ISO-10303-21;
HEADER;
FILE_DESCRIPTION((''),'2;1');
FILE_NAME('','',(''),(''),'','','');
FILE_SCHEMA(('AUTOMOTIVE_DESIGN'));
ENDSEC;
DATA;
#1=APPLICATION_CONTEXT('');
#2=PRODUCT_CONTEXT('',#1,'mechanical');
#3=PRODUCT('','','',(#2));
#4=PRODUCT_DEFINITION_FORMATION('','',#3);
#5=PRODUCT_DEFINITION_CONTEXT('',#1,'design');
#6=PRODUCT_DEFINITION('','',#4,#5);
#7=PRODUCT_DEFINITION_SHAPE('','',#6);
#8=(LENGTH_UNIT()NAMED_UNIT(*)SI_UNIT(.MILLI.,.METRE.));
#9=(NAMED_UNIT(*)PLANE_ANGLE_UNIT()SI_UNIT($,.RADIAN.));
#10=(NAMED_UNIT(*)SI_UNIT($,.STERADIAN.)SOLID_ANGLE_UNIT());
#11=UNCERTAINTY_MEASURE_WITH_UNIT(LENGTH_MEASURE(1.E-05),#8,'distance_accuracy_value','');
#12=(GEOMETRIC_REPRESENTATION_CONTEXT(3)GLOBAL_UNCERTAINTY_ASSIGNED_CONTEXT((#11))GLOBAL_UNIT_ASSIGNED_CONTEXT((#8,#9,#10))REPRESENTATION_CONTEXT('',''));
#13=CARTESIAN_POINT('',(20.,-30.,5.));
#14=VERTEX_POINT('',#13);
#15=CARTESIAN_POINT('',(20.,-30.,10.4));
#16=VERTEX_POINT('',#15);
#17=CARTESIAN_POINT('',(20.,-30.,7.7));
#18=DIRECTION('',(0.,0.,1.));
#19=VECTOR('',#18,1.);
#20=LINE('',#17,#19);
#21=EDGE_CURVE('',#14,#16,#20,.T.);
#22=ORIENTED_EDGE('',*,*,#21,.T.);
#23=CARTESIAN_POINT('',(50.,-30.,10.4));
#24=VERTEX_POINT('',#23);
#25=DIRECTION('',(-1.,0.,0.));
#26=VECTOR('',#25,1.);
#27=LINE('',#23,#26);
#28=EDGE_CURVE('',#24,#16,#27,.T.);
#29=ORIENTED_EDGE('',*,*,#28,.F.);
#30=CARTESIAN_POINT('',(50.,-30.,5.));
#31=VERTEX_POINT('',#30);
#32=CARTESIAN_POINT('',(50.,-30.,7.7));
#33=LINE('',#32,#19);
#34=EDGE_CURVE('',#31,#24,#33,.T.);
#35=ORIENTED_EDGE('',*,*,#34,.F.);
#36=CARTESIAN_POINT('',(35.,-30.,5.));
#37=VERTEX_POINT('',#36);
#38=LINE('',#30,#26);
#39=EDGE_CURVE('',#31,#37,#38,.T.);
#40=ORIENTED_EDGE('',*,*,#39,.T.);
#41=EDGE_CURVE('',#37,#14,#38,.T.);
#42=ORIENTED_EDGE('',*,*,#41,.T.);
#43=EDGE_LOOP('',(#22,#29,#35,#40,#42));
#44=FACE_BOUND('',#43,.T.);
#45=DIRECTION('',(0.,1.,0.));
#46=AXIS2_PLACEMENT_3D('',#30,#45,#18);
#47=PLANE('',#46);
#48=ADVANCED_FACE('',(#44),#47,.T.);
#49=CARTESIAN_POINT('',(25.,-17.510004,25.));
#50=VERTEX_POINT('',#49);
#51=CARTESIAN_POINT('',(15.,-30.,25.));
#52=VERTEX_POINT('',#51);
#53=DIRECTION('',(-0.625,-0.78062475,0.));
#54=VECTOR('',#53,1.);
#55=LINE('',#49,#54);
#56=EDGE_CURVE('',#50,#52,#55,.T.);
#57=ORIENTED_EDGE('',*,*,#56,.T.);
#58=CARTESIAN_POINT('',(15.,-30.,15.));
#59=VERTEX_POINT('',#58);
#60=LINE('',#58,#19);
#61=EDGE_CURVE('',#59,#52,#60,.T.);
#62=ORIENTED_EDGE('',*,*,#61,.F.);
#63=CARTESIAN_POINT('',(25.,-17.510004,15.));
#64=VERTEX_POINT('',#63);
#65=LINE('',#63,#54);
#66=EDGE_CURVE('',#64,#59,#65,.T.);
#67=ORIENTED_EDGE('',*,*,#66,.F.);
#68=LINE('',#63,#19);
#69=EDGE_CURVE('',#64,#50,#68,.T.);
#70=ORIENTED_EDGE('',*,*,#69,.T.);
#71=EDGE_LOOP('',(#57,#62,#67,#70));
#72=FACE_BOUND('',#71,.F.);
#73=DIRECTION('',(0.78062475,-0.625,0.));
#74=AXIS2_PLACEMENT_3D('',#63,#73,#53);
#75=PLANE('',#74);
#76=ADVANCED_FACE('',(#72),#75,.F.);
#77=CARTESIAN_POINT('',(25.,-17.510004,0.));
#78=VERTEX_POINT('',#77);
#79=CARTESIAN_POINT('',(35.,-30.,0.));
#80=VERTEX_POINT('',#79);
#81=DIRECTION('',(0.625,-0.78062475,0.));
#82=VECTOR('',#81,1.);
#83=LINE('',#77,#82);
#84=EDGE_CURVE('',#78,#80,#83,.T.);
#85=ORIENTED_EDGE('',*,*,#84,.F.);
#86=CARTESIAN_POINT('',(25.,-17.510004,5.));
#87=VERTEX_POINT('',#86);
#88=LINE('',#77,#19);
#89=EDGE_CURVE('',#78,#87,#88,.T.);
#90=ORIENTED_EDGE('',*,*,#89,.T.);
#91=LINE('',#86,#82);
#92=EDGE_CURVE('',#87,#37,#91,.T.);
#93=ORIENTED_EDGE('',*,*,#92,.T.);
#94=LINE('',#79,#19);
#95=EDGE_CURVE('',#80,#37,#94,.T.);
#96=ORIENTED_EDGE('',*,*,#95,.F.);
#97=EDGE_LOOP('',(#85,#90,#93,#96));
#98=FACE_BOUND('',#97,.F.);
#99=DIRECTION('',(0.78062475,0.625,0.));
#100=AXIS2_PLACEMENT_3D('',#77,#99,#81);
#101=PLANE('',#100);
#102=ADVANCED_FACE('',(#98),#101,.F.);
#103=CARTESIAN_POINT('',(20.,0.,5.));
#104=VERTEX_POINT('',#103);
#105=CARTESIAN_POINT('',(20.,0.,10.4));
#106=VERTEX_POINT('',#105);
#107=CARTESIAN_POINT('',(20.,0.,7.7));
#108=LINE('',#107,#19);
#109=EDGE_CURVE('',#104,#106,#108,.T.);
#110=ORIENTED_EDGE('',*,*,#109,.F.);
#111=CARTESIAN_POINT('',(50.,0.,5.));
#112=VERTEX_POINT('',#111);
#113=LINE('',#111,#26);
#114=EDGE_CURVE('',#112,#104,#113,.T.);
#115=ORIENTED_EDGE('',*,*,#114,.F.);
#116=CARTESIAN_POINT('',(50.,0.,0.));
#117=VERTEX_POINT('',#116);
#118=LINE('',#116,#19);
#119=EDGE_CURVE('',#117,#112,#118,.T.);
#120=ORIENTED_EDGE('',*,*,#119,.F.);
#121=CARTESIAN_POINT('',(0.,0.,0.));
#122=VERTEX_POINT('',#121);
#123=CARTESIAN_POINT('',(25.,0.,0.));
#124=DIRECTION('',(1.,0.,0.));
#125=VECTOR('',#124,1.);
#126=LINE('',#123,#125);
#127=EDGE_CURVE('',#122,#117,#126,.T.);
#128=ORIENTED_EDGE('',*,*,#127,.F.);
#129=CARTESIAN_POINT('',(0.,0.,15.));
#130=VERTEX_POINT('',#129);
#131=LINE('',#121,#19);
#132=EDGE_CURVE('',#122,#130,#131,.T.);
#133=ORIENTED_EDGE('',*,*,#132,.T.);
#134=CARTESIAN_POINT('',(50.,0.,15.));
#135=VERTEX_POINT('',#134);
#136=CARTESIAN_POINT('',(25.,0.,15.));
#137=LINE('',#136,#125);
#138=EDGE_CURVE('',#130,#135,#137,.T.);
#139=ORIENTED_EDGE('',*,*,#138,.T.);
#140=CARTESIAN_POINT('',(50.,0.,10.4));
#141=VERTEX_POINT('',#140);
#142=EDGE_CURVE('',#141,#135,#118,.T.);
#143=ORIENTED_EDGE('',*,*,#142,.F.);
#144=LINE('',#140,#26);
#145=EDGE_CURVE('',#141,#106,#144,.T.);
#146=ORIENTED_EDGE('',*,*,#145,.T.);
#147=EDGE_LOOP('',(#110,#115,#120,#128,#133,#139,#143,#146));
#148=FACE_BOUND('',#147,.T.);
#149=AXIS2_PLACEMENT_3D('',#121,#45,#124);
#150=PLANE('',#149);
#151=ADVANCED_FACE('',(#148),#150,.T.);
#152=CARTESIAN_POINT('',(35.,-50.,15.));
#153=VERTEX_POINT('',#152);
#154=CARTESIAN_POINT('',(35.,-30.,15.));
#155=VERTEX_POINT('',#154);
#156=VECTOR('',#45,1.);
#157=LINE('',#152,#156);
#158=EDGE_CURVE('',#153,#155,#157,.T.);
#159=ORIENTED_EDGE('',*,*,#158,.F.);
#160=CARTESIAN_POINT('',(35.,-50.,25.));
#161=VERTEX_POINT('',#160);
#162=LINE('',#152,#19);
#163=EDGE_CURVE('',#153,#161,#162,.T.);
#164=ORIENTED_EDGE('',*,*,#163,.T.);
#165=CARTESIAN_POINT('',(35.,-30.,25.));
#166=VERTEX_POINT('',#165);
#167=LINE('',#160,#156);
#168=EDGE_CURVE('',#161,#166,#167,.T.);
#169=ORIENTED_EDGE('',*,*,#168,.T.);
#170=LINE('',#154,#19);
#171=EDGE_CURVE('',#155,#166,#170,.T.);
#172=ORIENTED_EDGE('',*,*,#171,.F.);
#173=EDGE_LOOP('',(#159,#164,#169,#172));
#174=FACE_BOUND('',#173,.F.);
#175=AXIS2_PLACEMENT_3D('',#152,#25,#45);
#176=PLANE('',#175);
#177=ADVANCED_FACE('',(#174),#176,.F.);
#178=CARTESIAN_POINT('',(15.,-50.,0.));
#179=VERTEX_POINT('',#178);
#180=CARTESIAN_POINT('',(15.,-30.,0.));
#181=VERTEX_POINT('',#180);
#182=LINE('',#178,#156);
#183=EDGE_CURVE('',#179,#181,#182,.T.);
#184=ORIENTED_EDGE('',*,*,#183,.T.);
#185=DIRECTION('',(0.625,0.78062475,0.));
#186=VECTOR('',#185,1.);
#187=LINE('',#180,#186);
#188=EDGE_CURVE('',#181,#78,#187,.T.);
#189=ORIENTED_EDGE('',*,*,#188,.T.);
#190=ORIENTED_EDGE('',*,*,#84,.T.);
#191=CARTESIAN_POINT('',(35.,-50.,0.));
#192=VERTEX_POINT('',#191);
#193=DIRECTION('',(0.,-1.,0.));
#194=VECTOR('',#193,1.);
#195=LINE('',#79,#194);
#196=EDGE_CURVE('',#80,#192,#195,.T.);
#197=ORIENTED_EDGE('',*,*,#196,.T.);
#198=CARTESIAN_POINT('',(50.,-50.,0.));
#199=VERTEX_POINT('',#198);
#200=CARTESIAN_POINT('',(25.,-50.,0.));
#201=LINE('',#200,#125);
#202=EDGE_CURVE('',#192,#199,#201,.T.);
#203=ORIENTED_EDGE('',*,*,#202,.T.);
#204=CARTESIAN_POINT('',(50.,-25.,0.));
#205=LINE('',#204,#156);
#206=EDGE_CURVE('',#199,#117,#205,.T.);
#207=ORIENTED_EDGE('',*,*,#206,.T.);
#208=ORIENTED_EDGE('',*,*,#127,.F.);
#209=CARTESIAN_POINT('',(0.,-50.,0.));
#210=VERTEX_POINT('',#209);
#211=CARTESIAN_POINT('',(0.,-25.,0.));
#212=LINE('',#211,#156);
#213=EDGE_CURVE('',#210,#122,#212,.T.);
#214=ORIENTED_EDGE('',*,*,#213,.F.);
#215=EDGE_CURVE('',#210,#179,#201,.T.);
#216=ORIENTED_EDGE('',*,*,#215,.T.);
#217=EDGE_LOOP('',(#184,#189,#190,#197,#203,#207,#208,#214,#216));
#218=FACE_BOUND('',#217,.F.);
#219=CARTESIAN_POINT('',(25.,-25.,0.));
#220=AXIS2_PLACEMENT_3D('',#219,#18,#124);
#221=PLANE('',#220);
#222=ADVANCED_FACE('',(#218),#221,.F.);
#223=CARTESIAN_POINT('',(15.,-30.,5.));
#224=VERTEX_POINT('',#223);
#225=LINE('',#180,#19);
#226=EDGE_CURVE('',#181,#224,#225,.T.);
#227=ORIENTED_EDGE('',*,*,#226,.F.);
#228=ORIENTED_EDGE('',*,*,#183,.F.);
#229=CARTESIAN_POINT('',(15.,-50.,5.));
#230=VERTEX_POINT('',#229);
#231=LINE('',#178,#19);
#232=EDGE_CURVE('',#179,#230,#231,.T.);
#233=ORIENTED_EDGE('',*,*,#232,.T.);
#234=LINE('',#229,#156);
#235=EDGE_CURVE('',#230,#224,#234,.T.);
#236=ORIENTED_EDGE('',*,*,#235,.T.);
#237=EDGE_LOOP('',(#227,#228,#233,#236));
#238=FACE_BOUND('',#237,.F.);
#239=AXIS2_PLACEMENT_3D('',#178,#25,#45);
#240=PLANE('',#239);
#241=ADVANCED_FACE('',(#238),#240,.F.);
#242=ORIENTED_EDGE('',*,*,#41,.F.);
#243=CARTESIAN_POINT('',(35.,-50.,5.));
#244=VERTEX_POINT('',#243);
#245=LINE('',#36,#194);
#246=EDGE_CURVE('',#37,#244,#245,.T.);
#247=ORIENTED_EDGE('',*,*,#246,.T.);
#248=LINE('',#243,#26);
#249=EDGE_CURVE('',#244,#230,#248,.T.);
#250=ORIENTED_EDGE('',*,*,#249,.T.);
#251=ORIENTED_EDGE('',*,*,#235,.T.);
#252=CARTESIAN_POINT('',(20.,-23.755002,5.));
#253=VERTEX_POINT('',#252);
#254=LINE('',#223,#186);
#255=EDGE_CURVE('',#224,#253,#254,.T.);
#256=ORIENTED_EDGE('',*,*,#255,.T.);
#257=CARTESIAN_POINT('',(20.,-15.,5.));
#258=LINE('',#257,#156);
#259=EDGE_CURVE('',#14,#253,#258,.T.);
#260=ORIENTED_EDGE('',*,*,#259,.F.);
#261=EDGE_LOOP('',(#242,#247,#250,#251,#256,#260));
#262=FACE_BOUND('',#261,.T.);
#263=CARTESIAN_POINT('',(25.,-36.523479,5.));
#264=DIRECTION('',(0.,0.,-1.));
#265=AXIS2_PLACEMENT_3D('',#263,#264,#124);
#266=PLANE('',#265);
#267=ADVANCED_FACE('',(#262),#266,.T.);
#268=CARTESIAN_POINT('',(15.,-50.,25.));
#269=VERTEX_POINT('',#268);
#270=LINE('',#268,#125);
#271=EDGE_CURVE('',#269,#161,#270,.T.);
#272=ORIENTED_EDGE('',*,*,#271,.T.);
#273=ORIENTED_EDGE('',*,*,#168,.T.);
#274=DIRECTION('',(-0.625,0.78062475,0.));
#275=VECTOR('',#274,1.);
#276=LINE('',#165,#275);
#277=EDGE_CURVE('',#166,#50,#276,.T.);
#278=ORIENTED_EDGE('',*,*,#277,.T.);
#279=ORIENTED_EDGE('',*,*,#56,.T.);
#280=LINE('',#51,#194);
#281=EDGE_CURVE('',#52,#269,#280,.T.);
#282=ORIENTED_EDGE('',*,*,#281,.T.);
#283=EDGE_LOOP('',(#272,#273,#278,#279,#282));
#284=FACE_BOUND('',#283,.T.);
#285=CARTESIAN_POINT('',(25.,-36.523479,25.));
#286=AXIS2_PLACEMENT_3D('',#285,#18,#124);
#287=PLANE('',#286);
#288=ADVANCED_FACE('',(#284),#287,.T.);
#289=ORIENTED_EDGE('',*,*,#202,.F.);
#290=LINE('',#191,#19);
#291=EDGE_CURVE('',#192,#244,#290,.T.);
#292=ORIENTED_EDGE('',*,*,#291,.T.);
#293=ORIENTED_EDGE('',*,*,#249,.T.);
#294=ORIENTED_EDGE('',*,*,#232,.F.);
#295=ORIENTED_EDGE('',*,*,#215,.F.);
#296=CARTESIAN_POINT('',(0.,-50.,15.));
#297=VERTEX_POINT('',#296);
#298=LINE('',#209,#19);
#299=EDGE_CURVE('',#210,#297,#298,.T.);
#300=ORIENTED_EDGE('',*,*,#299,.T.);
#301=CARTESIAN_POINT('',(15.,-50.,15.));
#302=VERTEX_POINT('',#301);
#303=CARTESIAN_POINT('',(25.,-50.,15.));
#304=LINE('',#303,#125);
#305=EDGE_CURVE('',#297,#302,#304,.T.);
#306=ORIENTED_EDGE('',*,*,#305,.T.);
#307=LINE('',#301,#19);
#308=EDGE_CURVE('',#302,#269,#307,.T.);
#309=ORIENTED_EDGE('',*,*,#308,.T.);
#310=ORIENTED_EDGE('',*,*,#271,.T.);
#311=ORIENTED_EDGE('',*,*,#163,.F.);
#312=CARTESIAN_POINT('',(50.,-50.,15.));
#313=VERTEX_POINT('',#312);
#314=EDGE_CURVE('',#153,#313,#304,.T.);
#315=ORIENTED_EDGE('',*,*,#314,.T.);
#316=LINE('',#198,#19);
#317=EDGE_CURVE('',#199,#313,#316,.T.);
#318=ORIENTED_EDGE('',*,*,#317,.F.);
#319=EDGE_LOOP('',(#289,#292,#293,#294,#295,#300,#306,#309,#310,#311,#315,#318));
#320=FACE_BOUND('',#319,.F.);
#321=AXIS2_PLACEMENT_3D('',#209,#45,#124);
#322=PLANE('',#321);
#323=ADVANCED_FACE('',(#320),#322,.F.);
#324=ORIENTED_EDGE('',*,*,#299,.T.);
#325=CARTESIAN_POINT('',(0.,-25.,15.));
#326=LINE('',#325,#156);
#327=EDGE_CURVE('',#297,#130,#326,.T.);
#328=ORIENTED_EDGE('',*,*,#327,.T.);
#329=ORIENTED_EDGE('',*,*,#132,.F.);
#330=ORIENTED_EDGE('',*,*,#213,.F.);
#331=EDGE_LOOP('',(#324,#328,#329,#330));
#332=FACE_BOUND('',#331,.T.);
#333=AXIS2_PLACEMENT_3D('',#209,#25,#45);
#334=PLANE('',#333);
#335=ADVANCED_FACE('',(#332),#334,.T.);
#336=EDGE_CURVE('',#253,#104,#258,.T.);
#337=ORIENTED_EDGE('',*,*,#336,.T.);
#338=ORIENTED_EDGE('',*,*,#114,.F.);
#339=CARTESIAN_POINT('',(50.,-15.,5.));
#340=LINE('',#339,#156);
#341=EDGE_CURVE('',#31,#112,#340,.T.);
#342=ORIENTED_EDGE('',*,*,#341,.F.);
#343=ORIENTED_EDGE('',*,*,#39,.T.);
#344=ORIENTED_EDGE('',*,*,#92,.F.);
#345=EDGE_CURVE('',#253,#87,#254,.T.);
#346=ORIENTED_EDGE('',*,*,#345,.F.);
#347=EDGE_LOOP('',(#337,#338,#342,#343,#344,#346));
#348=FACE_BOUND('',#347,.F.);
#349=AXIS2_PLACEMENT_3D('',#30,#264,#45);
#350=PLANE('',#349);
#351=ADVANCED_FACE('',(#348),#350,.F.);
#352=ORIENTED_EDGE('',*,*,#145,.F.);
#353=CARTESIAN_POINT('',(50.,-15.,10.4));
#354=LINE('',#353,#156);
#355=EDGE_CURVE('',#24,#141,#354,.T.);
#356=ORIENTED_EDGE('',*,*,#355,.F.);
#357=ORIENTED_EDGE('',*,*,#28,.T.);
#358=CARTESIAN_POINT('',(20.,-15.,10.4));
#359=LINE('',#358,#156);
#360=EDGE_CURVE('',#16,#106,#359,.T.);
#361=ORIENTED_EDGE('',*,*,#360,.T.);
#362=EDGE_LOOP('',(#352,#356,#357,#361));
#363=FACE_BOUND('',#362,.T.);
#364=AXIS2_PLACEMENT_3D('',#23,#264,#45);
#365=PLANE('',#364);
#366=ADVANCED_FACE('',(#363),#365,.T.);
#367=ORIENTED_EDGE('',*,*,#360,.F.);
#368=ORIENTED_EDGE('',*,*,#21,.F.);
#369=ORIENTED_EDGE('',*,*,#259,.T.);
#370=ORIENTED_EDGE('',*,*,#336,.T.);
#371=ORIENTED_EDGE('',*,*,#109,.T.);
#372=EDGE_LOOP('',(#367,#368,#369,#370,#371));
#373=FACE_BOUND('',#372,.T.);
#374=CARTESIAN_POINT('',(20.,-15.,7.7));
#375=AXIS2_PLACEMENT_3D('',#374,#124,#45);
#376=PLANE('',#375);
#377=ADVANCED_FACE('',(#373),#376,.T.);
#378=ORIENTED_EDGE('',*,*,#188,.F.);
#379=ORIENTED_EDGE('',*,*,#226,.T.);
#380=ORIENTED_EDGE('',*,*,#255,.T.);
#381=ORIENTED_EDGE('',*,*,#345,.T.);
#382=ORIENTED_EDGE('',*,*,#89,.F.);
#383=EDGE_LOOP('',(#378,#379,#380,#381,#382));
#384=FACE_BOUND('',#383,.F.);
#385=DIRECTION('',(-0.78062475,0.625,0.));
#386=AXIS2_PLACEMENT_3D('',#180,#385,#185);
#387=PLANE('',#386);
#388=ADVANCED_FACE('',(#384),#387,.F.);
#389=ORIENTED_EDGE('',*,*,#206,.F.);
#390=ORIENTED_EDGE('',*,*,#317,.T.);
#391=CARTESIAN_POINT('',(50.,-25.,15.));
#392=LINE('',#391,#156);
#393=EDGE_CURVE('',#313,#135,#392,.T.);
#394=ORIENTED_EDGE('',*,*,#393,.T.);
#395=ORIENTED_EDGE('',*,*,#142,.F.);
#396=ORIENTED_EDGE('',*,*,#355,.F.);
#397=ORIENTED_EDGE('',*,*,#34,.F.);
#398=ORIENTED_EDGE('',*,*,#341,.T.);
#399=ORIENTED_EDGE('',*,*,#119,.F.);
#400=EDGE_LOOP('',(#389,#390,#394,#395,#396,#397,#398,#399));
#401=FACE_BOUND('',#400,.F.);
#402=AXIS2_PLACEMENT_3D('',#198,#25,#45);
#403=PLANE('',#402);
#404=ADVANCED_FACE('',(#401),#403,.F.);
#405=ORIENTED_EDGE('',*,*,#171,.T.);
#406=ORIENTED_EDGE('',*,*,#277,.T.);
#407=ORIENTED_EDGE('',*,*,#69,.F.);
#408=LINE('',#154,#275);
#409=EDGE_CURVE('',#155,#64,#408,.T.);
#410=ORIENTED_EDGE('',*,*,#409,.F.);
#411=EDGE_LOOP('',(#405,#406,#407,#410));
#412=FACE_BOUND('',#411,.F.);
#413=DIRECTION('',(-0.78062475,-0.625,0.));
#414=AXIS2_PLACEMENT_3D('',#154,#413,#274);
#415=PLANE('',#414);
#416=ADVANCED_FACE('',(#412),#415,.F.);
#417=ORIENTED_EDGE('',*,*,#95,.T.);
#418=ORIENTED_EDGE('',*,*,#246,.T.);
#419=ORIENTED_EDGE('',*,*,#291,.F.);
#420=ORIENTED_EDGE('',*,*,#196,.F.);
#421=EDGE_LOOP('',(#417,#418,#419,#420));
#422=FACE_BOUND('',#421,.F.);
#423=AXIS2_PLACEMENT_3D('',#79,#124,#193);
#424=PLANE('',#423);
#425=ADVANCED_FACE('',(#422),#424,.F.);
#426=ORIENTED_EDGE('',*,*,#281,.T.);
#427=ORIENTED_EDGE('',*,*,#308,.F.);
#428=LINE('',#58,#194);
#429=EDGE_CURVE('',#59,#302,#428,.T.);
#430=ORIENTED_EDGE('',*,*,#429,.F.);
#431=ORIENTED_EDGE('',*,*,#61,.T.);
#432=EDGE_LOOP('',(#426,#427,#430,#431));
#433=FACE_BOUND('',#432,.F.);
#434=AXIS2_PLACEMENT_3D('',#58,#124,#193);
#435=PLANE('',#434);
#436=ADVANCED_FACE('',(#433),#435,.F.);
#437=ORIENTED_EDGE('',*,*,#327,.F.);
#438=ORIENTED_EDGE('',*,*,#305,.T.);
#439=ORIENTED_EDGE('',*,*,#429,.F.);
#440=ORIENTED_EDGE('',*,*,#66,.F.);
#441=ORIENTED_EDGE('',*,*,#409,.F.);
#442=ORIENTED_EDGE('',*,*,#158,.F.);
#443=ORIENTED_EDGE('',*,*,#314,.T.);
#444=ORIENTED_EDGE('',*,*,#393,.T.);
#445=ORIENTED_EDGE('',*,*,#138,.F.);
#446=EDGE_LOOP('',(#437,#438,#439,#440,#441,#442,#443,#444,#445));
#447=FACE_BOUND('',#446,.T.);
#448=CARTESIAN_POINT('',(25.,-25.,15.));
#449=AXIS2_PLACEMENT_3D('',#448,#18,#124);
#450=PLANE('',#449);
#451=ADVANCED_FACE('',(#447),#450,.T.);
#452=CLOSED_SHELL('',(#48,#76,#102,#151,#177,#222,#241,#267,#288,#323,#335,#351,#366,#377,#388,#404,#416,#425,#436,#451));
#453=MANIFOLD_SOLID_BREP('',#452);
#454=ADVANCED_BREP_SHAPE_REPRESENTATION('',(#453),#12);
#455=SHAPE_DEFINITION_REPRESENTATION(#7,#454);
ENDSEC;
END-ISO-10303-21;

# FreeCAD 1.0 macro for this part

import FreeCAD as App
import Part
import Sketcher

V = App.Vector
Q = App.Units.Quantity

doc = App.newDocument("Part")
body = doc.addObject("PartDesign::Body", "Body")

sketch1 = body.newObject("Sketcher::SketchObject", "Sketch")
sketch1.AttachmentSupport = (doc.getObject("XY_Plane"), [""])
sketch1.MapMode = "FlatFace"
sketch1.addGeometry([
    Part.LineSegment(V(0, 0, 0), V(0, -50, 0)),
    Part.LineSegment(V(0, -50, 0), V(50, -50, 0)),
    Part.LineSegment(V(50, -50, 0), V(50, 0, 0)),
    Part.LineSegment(V(50, 0, 0), V(0, 0, 0)),
], False)
sketch1.addConstraint([
    Sketcher.Constraint("Coincident", 0, 2, 1, 1),
    Sketcher.Constraint("Coincident", 1, 2, 2, 1),
    Sketcher.Constraint("Coincident", 2, 2, 3, 1),
    Sketcher.Constraint("Coincident", 3, 2, 0, 1),
    Sketcher.Constraint("Vertical", 0),
    Sketcher.Constraint("Horizontal", 1),
    Sketcher.Constraint("Vertical", 2),
    Sketcher.Constraint("Horizontal", 3),
    Sketcher.Constraint("Coincident", 3, 2, -1, 1),
    Sketcher.Constraint("Equal", 3, 0),
    Sketcher.Constraint("DistanceX", 1, 1, 1, 2, Q("50 mm")),
])
pad1 = body.newObject("PartDesign::Pad", "Pad")
pad1.Profile = sketch1
pad1.Length = 15

sketch2 = body.newObject("Sketcher::SketchObject", "Sketch001")
sketch2.AttachmentSupport = (doc.getObject("XY_Plane"), [""])
sketch2.MapMode = "FlatFace"
sketch2.AttachmentOffset = App.Placement(V(0, 0, 15), App.Rotation())
sketch2.addGeometry([
    Part.LineSegment(V(15, -30, 0), V(15, -50, 0)),
    Part.LineSegment(V(15, -50, 0), V(35, -50, 0)),
    Part.LineSegment(V(35, -50, 0), V(35, -30, 0)),
    Part.LineSegment(V(35, -30, 0), V(25, -18, 0)),
    Part.LineSegment(V(25, -18, 0), V(15, -30, 0)),
], False)
sketch2.addConstraint([
    Sketcher.Constraint("Coincident", 0, 2, 1, 1),
    Sketcher.Constraint("Coincident", 1, 2, 2, 1),
    Sketcher.Constraint("Coincident", 2, 2, 3, 1),
    Sketcher.Constraint("Coincident", 3, 2, 4, 1),
    Sketcher.Constraint("Coincident", 4, 2, 0, 1),
    Sketcher.Constraint("Vertical", 0),
    Sketcher.Constraint("Horizontal", 1),
    Sketcher.Constraint("Vertical", 2),
    Sketcher.Constraint("Horizontal", 2, 2, 4, 2),
    Sketcher.Constraint("Equal", 1, 0),
    Sketcher.Constraint("Equal", 3, 4),
    Sketcher.Constraint("DistanceX", 1, 1, 1, 2, Q("20 mm")),
    Sketcher.Constraint("Distance", 3, Q("16 mm")),
    Sketcher.Constraint("DistanceX", -1, 1, 0, 2, Q("15 mm")),
    Sketcher.Constraint("DistanceY", 0, 2, -1, 1, Q("50 mm")),
])
pad2 = body.newObject("PartDesign::Pad", "Pad001")
pad2.Profile = sketch2
pad2.Length = 10

sketch3 = body.newObject("Sketcher::SketchObject", "Sketch002")
sketch3.AttachmentSupport = (doc.getObject("XY_Plane"), [""])
sketch3.MapMode = "FlatFace"
sketch3.addGeometry([
    Part.LineSegment(V(35, -50, 0), V(15, -50, 0)),
    Part.LineSegment(V(15, -50, 0), V(15, -30, 0)),
    Part.LineSegment(V(15, -30, 0), V(25, -18, 0)),
    Part.LineSegment(V(25, -18, 0), V(35, -30, 0)),
    Part.LineSegment(V(35, -30, 0), V(35, -50, 0)),
], False)
sketch3.addConstraint([
    Sketcher.Constraint("Coincident", 0, 2, 1, 1),
    Sketcher.Constraint("Coincident", 1, 2, 2, 1),
    Sketcher.Constraint("Coincident", 2, 2, 3, 1),
    Sketcher.Constraint("Coincident", 3, 2, 4, 1),
    Sketcher.Constraint("Coincident", 4, 2, 0, 1),
    Sketcher.Constraint("Horizontal", 0),
    Sketcher.Constraint("Vertical", 1),
    Sketcher.Constraint("Vertical", 4),
    Sketcher.Constraint("Horizontal", 1, 2, 3, 2),
    Sketcher.Constraint("Equal", 0, 1),
    Sketcher.Constraint("Equal", 2, 3),
    Sketcher.Constraint("DistanceX", 0, 2, 0, 1, Q("20 mm")),
    Sketcher.Constraint("Distance", 2, Q("16 mm")),
    Sketcher.Constraint("DistanceX", -1, 1, 0, 2, Q("15 mm")),
    Sketcher.Constraint("DistanceY", 0, 2, -1, 1, Q("50 mm")),
])
pocket1 = body.newObject("PartDesign::Pocket", "Pocket")
pocket1.Profile = sketch3
pocket1.Length = 5
pocket1.Reversed = True

sketch4 = body.newObject("Sketcher::SketchObject", "Sketch003")
sketch4.AttachmentSupport = (doc.getObject("YZ_Plane"), [""])
sketch4.MapMode = "FlatFace"
sketch4.AttachmentOffset = App.Placement(V(0, 0, 50), App.Rotation())
sketch4.addGeometry([
    Part.LineSegment(V(-30, 10, 0), V(-30, 5, 0)),
    Part.LineSegment(V(-30, 5, 0), V(0, 5, 0)),
    Part.LineSegment(V(0, 5, 0), V(0, 10, 0)),
    Part.LineSegment(V(0, 10, 0), V(-30, 10, 0)),
], False)
sketch4.addConstraint([
    Sketcher.Constraint("Coincident", 0, 2, 1, 1),
    Sketcher.Constraint("Coincident", 1, 2, 2, 1),
    Sketcher.Constraint("Coincident", 2, 2, 3, 1),
    Sketcher.Constraint("Coincident", 3, 2, 0, 1),
    Sketcher.Constraint("Vertical", 0),
    Sketcher.Constraint("Horizontal", 1),
    Sketcher.Constraint("Vertical", 2),
    Sketcher.Constraint("Horizontal", 3),
    Sketcher.Constraint("PointOnObject", 1, 2, -2),
    Sketcher.Constraint("DistanceX", 1, 1, 1, 2, Q("30 mm")),
    Sketcher.Constraint("DistanceY", 0, 2, 0, 1, Q("5.4 mm")),
    Sketcher.Constraint("DistanceY", -1, 1, 0, 2, Q("5 mm")),
])
pocket2 = body.newObject("PartDesign::Pocket", "Pocket001")
pocket2.Profile = sketch4
pocket2.Length = 30

doc.recompute()
